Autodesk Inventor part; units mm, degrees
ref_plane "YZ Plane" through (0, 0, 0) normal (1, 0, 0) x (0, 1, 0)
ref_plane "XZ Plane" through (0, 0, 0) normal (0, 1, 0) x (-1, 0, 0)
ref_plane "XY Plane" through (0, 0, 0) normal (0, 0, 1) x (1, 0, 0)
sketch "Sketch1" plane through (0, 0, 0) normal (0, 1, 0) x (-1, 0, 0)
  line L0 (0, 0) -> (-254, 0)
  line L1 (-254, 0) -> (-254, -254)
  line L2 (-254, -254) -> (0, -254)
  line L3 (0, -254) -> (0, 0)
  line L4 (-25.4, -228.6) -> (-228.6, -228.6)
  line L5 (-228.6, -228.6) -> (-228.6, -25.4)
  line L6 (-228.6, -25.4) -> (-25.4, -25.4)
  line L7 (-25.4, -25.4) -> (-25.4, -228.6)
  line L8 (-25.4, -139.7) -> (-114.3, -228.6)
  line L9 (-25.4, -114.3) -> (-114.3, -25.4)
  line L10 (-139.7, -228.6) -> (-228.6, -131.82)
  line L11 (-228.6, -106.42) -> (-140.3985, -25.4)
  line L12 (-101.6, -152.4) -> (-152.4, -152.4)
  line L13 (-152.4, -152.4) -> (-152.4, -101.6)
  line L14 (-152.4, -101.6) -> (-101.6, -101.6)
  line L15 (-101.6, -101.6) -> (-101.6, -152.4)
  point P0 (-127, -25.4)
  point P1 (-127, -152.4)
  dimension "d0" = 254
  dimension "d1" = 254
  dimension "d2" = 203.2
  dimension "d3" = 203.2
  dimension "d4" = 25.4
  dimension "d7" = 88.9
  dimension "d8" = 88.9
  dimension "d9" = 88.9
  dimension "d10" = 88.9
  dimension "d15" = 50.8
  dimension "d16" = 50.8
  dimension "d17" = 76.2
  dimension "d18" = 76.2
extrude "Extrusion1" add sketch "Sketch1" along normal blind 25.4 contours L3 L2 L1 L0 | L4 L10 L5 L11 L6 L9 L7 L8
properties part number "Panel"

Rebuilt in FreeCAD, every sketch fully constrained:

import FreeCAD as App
import Part
import Sketcher
Q = App.Units.Quantity

doc = App.newDocument("Part")
body = doc.addObject("PartDesign::Body", "Body")

# Sketch on XZ plane
sketch1 = body.newObject("Sketcher::SketchObject", "Sketch")
sketch1.AttachmentSupport = (doc.getObject("XZ_Plane"), [""])
sketch1.MapMode = "FlatFace"
sketch1.addGeometry([
    Part.LineSegment(App.Vector(0, -254, 0), App.Vector(0, 0, 0)),  # 0
    Part.LineSegment(App.Vector(0, 0, 0), App.Vector(254, 0, 0)),  # 1
    Part.LineSegment(App.Vector(254, 0, 0), App.Vector(254, -254, 0)),  # 2
    Part.LineSegment(App.Vector(254, -254, 0), App.Vector(0, -254, 0)),  # 3
    Part.LineSegment(App.Vector(25, -140, 0), App.Vector(25, -229, 0)),  # 4
    Part.LineSegment(App.Vector(25, -229, 0), App.Vector(114, -229, 0)),  # 5
    Part.LineSegment(App.Vector(114, -229, 0), App.Vector(25, -140, 0)),  # 6
    Part.LineSegment(App.Vector(25, -25, 0), App.Vector(25, -114, 0)),  # 7
    Part.LineSegment(App.Vector(25, -114, 0), App.Vector(114, -25, 0)),  # 8
    Part.LineSegment(App.Vector(114, -25, 0), App.Vector(25, -25, 0)),  # 9
    Part.LineSegment(App.Vector(229, -25, 0), App.Vector(140, -25, 0)),  # 10
    Part.LineSegment(App.Vector(140, -25, 0), App.Vector(229, -106, 0)),  # 11
    Part.LineSegment(App.Vector(229, -106, 0), App.Vector(229, -25, 0)),  # 12
    Part.LineSegment(App.Vector(229, -229, 0), App.Vector(229, -132, 0)),  # 13
    Part.LineSegment(App.Vector(229, -132, 0), App.Vector(140, -229, 0)),  # 14
    Part.LineSegment(App.Vector(140, -229, 0), App.Vector(229, -229, 0)),  # 15
    Part.LineSegment(App.Vector(102, -102, 0), App.Vector(102, -152, 0)),  # 16
    Part.LineSegment(App.Vector(102, -152, 0), App.Vector(152, -152, 0)),  # 17
    Part.LineSegment(App.Vector(152, -152, 0), App.Vector(152, -102, 0)),  # 18
    Part.LineSegment(App.Vector(152, -102, 0), App.Vector(102, -102, 0)),  # 19
], False)
sketch1.addConstraint([
    Sketcher.Constraint("Coincident", 0, 2, 1, 1),
    Sketcher.Constraint("Coincident", 1, 2, 2, 1),
    Sketcher.Constraint("Coincident", 2, 2, 3, 1),
    Sketcher.Constraint("Coincident", 3, 2, 0, 1),
    Sketcher.Constraint("Coincident", 4, 2, 5, 1),
    Sketcher.Constraint("Coincident", 5, 2, 6, 1),
    Sketcher.Constraint("Coincident", 6, 2, 4, 1),
    Sketcher.Constraint("Coincident", 7, 2, 8, 1),
    Sketcher.Constraint("Coincident", 8, 2, 9, 1),
    Sketcher.Constraint("Coincident", 9, 2, 7, 1),
    Sketcher.Constraint("Coincident", 10, 2, 11, 1),
    Sketcher.Constraint("Coincident", 11, 2, 12, 1),
    Sketcher.Constraint("Coincident", 12, 2, 10, 1),
    Sketcher.Constraint("Coincident", 13, 2, 14, 1),
    Sketcher.Constraint("Coincident", 14, 2, 15, 1),
    Sketcher.Constraint("Coincident", 15, 2, 13, 1),
    Sketcher.Constraint("Coincident", 16, 2, 17, 1),
    Sketcher.Constraint("Coincident", 17, 2, 18, 1),
    Sketcher.Constraint("Coincident", 18, 2, 19, 1),
    Sketcher.Constraint("Coincident", 19, 2, 16, 1),
    Sketcher.Constraint("Vertical", 0),
    Sketcher.Constraint("Horizontal", 1),
    Sketcher.Constraint("Vertical", 2),
    Sketcher.Constraint("Horizontal", 3),
    Sketcher.Constraint("Vertical", 4),
    Sketcher.Constraint("Horizontal", 5),
    Sketcher.Constraint("Vertical", 7),
    Sketcher.Constraint("Horizontal", 9),
    Sketcher.Constraint("Horizontal", 10),
    Sketcher.Constraint("Vertical", 12),
    Sketcher.Constraint("Vertical", 13),
    Sketcher.Constraint("Horizontal", 15),
    Sketcher.Constraint("Vertical", 16),
    Sketcher.Constraint("Horizontal", 17),
    Sketcher.Constraint("Vertical", 18),
    Sketcher.Constraint("Horizontal", 19),
    Sketcher.Constraint("Coincident", 0, 2, -1, 1),
    Sketcher.Constraint("Perpendicular", 6, 8),
    Sketcher.Constraint("Perpendicular", 11, 14),
    Sketcher.Constraint("Horizontal", 9, 2, 10, 2),
    Sketcher.Constraint("Horizontal", 5, 2, 14, 2),
    Sketcher.Constraint("Vertical", 6, 2, 7, 2),
    Sketcher.Constraint("Vertical", 5, 2, 8, 2),
    Sketcher.Constraint("Vertical", 12, 2, 13, 2),
    Sketcher.Constraint("Equal", 9, 15),
    Sketcher.Constraint("Equal", 3, 0),
    Sketcher.Constraint("Equal", 15, 4),
    Sketcher.Constraint("Equal", 19, 16),
    Sketcher.Constraint("DistanceX", 1, 1, 1, 2, Q("10 in")),
    Sketcher.Constraint("DistanceX", 17, 1, 17, 2, Q("2 in")),
    Sketcher.Constraint("DistanceX", 5, 1, 5, 2, Q("3.5 in")),
    Sketcher.Constraint("DistanceX", -1, 1, 4, 2, Q("1 in")),
    Sketcher.Constraint("DistanceY", 8, 2, -1, 1, Q("1 in")),
    Sketcher.Constraint("DistanceY", 3, 2, 4, 2, Q("1 in")),
    Sketcher.Constraint("DistanceX", 11, 2, 1, 2, Q("1 in")),
    Sketcher.Constraint("DistanceY", 13, 2, 11, 2, Q("1 in")),
    Sketcher.Constraint("DistanceY", 5, 2, 16, 2, Q("3 in")),
    Sketcher.Constraint("DistanceX", 6, 2, 16, 2, Q("3 in")),
    Sketcher.Constraint("Angle", 11, Q("-42.57 deg")),
])
pad1 = body.newObject("PartDesign::Pad", "Pad")
pad1.Profile = sketch1
pad1.Length = Q("1 in")
pad1.Reversed = True

doc.recompute()
